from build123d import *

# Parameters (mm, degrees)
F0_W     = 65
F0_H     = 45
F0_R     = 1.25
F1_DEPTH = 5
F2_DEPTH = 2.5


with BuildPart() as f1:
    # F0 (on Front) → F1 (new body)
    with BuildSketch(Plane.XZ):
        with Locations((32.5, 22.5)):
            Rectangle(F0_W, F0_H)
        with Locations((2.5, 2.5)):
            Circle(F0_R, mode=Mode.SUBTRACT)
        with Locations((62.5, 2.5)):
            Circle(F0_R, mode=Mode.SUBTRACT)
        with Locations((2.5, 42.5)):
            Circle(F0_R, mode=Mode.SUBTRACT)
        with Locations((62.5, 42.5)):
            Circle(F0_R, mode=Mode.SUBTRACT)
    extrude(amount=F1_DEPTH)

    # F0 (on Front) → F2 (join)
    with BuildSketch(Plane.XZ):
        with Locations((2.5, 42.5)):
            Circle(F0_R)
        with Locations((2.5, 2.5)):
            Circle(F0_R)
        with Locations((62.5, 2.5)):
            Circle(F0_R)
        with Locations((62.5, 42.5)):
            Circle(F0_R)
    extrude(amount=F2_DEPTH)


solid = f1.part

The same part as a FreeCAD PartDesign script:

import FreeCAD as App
import Part
import Sketcher
Q = App.Units.Quantity


def add_polygon(sketch, points):
    """Adds a closed chain of lines whose ends are joined by coincident constraints."""
    first, n = sketch.GeometryCount, len(points)
    for a, b in zip(points, points[1:] + points[:1]):
        sketch.addGeometry(Part.LineSegment(App.Vector(*a, 0), App.Vector(*b, 0)), False)
    for i in range(n):
        sketch.addConstraint(Sketcher.Constraint("Coincident", first + i, 2, first + (i + 1) % n, 1))

doc = App.newDocument("Part")
body = doc.addObject("PartDesign::Body", "Body")

sketch1 = doc.addObject("Sketcher::SketchObject", "Sketch")
body.addObject(sketch1)
sketch1.AttachmentSupport = (doc.XZ_Plane, [""])
sketch1.MapMode = "FlatFace"
add_polygon(sketch1, [(0, 45), (0, 0), (65, 0), (65, 45)])
sketch1.addGeometry(Part.Circle(App.Vector(2.5, 2.5, 0), App.Vector(0, 0, 1), 1.2), False)
sketch1.addGeometry(Part.Circle(App.Vector(62.5, 2.5, 0), App.Vector(0, 0, 1), 1.2), False)
sketch1.addGeometry(Part.Circle(App.Vector(2.5, 42.5, 0), App.Vector(0, 0, 1), 1.2), False)
sketch1.addGeometry(Part.Circle(App.Vector(62.5, 42.5, 0), App.Vector(0, 0, 1), 1.2), False)
sketch1.addConstraint([
    Sketcher.Constraint("Vertical", 0),
    Sketcher.Constraint("Horizontal", 1),
    Sketcher.Constraint("Vertical", 2),
    Sketcher.Constraint("Horizontal", 3),
    Sketcher.Constraint("Coincident", 0, 2, -1, 1),
    Sketcher.Constraint("Equal", 4, 5),
    Sketcher.Constraint("Equal", 5, 6),
    Sketcher.Constraint("Equal", 6, 7),
    Sketcher.Constraint("Horizontal", 4, 3, 5, 3),
    Sketcher.Constraint("Horizontal", 6, 3, 7, 3),
    Sketcher.Constraint("Vertical", 4, 3, 6, 3),
    Sketcher.Constraint("Vertical", 5, 3, 7, 3),
    Sketcher.Constraint("Diameter", 4, Q("2.5 mm")),
    Sketcher.Constraint("DistanceX", 1, 1, 1, 2, Q("65 mm")),
    Sketcher.Constraint("DistanceY", 0, 2, 0, 1, Q("45 mm")),
    Sketcher.Constraint("DistanceX", 4, 3, 5, 3, Q("60 mm")),
    Sketcher.Constraint("DistanceY", 4, 3, 6, 3, Q("40 mm")),
    Sketcher.Constraint("DistanceX", -1, 1, 4, 3, Q("2.5 mm")),
    Sketcher.Constraint("DistanceY", -1, 1, 4, 3, Q("2.5 mm")),
])
pad1 = doc.addObject("PartDesign::Pad", "Pad")
body.addObject(pad1)
pad1.Profile = sketch1
pad1.Length = 5

sketch2 = doc.addObject("Sketcher::SketchObject", "Sketch001")
body.addObject(sketch2)
sketch2.AttachmentSupport = (doc.XZ_Plane, [""])
sketch2.MapMode = "FlatFace"
sketch2.addGeometry([
    Part.Circle(App.Vector(2.5, 42.5, 0), App.Vector(0, 0, 1), 1.2),
    Part.Circle(App.Vector(2.5, 2.5, 0), App.Vector(0, 0, 1), 1.2),
    Part.Circle(App.Vector(62.5, 2.5, 0), App.Vector(0, 0, 1), 1.2),
    Part.Circle(App.Vector(62.5, 42.5, 0), App.Vector(0, 0, 1), 1.2),
], False)
sketch2.addConstraint([
    Sketcher.Constraint("Equal", 0, 1),
    Sketcher.Constraint("Equal", 1, 2),
    Sketcher.Constraint("Equal", 2, 3),
    Sketcher.Constraint("Horizontal", 1, 3, 2, 3),
    Sketcher.Constraint("Horizontal", 0, 3, 3, 3),
    Sketcher.Constraint("Vertical", 0, 3, 1, 3),
    Sketcher.Constraint("Vertical", 2, 3, 3, 3),
    Sketcher.Constraint("Diameter", 0, Q("2.5 mm")),
    Sketcher.Constraint("DistanceY", 1, 3, 0, 3, Q("40 mm")),
    Sketcher.Constraint("DistanceX", 1, 3, 2, 3, Q("60 mm")),
    Sketcher.Constraint("DistanceX", -1, 1, 0, 3, Q("2.5 mm")),
    Sketcher.Constraint("DistanceY", -1, 1, 0, 3, Q("42.5 mm")),
])
pad2 = doc.addObject("PartDesign::Pad", "Pad001")
body.addObject(pad2)
pad2.Profile = sketch2
pad2.Length = 2.5

doc.recompute()
